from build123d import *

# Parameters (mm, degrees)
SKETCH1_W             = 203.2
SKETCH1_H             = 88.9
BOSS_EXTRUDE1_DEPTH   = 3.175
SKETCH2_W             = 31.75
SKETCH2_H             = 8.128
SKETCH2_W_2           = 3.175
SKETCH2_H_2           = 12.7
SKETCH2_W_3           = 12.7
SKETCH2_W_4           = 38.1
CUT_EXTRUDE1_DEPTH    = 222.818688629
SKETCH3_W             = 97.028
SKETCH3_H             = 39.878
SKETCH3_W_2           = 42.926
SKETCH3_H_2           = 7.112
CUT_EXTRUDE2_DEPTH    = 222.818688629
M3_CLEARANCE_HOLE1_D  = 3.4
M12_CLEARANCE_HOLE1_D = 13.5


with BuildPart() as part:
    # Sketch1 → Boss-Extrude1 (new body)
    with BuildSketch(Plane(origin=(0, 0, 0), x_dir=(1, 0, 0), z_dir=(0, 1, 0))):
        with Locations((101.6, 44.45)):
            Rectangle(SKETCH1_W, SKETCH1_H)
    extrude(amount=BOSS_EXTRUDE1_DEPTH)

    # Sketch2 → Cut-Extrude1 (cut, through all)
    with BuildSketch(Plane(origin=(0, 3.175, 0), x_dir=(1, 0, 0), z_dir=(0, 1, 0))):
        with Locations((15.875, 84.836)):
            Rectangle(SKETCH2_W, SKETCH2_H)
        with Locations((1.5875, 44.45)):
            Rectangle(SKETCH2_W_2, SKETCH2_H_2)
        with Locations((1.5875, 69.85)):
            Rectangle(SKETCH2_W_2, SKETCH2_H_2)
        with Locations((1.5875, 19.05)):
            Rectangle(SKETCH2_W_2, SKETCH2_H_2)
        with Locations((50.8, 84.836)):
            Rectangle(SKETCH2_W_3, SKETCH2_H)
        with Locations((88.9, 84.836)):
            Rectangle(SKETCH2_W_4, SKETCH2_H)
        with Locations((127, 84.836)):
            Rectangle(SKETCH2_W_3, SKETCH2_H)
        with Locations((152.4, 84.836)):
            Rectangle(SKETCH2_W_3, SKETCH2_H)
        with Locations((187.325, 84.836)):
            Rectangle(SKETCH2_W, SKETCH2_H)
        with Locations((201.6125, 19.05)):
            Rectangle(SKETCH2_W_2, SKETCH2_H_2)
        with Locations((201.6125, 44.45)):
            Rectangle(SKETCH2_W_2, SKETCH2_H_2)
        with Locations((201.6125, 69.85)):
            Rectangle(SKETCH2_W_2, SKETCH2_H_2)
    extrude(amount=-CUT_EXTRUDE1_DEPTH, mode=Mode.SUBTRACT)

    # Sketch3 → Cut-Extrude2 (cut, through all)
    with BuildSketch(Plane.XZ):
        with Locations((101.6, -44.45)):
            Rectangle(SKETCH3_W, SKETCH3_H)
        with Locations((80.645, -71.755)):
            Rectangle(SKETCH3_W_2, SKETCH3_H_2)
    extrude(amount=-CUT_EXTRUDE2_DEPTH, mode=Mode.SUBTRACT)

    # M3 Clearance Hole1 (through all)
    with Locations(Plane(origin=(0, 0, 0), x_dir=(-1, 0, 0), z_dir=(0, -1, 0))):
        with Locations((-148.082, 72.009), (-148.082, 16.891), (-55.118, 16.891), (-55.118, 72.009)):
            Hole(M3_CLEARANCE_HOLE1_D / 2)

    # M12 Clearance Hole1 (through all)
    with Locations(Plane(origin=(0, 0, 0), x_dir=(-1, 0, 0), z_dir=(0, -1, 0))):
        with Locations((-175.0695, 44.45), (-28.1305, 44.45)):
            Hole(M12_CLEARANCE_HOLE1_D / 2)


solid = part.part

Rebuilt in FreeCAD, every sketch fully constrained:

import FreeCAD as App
import Part
import Sketcher

V = App.Vector
Q = App.Units.Quantity

doc = App.newDocument("Part")
params = doc.addObject("Spreadsheet::Sheet", "Params")
for row, (alias, value) in enumerate([
    ("sketch1_width", "8 in"),
    ("sketch1_height", "3.5 in"),
    ("pad1_length", "0.125 in"),
    ("sketch2_width", "0.5 in"),
    ("sketch2_width2", "1.5 in"),
    ("sketch2_height", "0.32 in"),
    ("sketch2_width3", "0.125 in"),
    ("sketch3_width", "3.82 in"),
    ("sketch3_width2", "1.69 in"),
    ("sketch3_height", "1.57 in"),
    ("sketch3_height2", "0.28 in"),
    ("hole_diameter", "3.4 mm"),
    ("hole2_diameter", "13.5 mm"),
], start=1):
    params.set(f"A{row}", alias)
    params.set(f"B{row}", "=" + value)
    params.setAlias(f"B{row}", alias)

body = doc.addObject("PartDesign::Body", "Body")

# Sketch on XZ plane
sketch1 = body.newObject("Sketcher::SketchObject", "Sketch")
sketch1.AttachmentSupport = (doc.getObject("XZ_Plane"), [""])
sketch1.MapMode = "FlatFace"
sketch1.addGeometry([
    Part.LineSegment(V(0, -89, 0), V(0, 0, 0)),
    Part.LineSegment(V(0, 0, 0), V(203, 0, 0)),
    Part.LineSegment(V(203, 0, 0), V(203, -89, 0)),
    Part.LineSegment(V(203, -89, 0), V(0, -89, 0)),
], False)
sketch1.addConstraint([
    Sketcher.Constraint("Coincident", 0, 2, 1, 1),
    Sketcher.Constraint("Coincident", 1, 2, 2, 1),
    Sketcher.Constraint("Coincident", 2, 2, 3, 1),
    Sketcher.Constraint("Coincident", 3, 2, 0, 1),
    Sketcher.Constraint("Vertical", 0),
    Sketcher.Constraint("Horizontal", 1),
    Sketcher.Constraint("Vertical", 2),
    Sketcher.Constraint("Horizontal", 3),
    Sketcher.Constraint("Coincident", 0, 2, -1, 1),
    Sketcher.Constraint("DistanceX", 1, 1, 1, 2, Q("8 in")),
    Sketcher.Constraint("DistanceY", 0, 1, 0, 2, Q("3.5 in")),
])
sketch1.setExpression("Constraints[9]", "Params.sketch1_width")
sketch1.setExpression("Constraints[10]", "Params.sketch1_height")
pad1 = body.newObject("PartDesign::Pad", "Pad")
pad1.Profile = sketch1
pad1.setExpression("Length", "Params.pad1_length")
pad1.Reversed = True

# Sketch on XZ plane
sketch2 = body.newObject("Sketcher::SketchObject", "Sketch001")
sketch2.AttachmentSupport = (doc.getObject("XZ_Plane"), [""])
sketch2.MapMode = "FlatFace"
sketch2.AttachmentOffset = App.Placement(V(0, 0, -0.125 * 25.4), App.Rotation())
sketch2.addGeometry([
    Part.LineSegment(V(0, -88.9, 0), V(0, -80.8, 0)),  # 0
    Part.LineSegment(V(0, -80.8, 0), V(31.8, -80.8, 0)),  # 1
    Part.LineSegment(V(31.8, -80.8, 0), V(31.8, -88.9, 0)),  # 2
    Part.LineSegment(V(31.8, -88.9, 0), V(0, -88.9, 0)),  # 3
    Part.LineSegment(V(0, -50.8, 0), V(0, -38.1, 0)),  # 4
    Part.LineSegment(V(0, -38.1, 0), V(3.2, -38.1, 0)),  # 5
    Part.LineSegment(V(3.2, -38.1, 0), V(3.2, -50.8, 0)),  # 6
    Part.LineSegment(V(3.2, -50.8, 0), V(0, -50.8, 0)),  # 7
    Part.LineSegment(V(0, -76.2, 0), V(0, -63.5, 0)),  # 8
    Part.LineSegment(V(0, -63.5, 0), V(3.2, -63.5, 0)),  # 9
    Part.LineSegment(V(3.2, -63.5, 0), V(3.2, -76.2, 0)),  # 10
    Part.LineSegment(V(3.2, -76.2, 0), V(0, -76.2, 0)),  # 11
    Part.LineSegment(V(0, -25.4, 0), V(0, -12.7, 0)),  # 12
    Part.LineSegment(V(0, -12.7, 0), V(3.2, -12.7, 0)),  # 13
    Part.LineSegment(V(3.2, -12.7, 0), V(3.2, -25.4, 0)),  # 14
    Part.LineSegment(V(3.2, -25.4, 0), V(0, -25.4, 0)),  # 15
    Part.LineSegment(V(44.5, -88.9, 0), V(44.5, -80.8, 0)),  # 16
    Part.LineSegment(V(44.5, -80.8, 0), V(57.1, -80.8, 0)),  # 17
    Part.LineSegment(V(57.1, -80.8, 0), V(57.1, -88.9, 0)),  # 18
    Part.LineSegment(V(57.1, -88.9, 0), V(44.5, -88.9, 0)),  # 19
    Part.LineSegment(V(69.8, -88.9, 0), V(69.8, -80.8, 0)),  # 20
    Part.LineSegment(V(69.8, -80.8, 0), V(108, -80.8, 0)),  # 21
    Part.LineSegment(V(108, -80.8, 0), V(108, -88.9, 0)),  # 22
    Part.LineSegment(V(108, -88.9, 0), V(69.8, -88.9, 0)),  # 23
    Part.LineSegment(V(120.7, -88.9, 0), V(120.7, -80.8, 0)),  # 24
    Part.LineSegment(V(120.7, -80.8, 0), V(133.3, -80.8, 0)),  # 25
    Part.LineSegment(V(133.3, -80.8, 0), V(133.3, -88.9, 0)),  # 26
    Part.LineSegment(V(133.3, -88.9, 0), V(120.7, -88.9, 0)),  # 27
    Part.LineSegment(V(146.1, -88.9, 0), V(146.1, -80.8, 0)),  # 28
    Part.LineSegment(V(146.1, -80.8, 0), V(158.8, -80.8, 0)),  # 29
    Part.LineSegment(V(158.8, -80.8, 0), V(158.8, -88.9, 0)),  # 30
    Part.LineSegment(V(158.8, -88.9, 0), V(146.1, -88.9, 0)),  # 31
    Part.LineSegment(V(171.4, -88.9, 0), V(171.4, -80.8, 0)),  # 32
    Part.LineSegment(V(171.4, -80.8, 0), V(203.2, -80.8, 0)),  # 33
    Part.LineSegment(V(203.2, -80.8, 0), V(203.2, -88.9, 0)),  # 34
    Part.LineSegment(V(203.2, -88.9, 0), V(171.4, -88.9, 0)),  # 35
    Part.LineSegment(V(200, -25.4, 0), V(200, -12.7, 0)),  # 36
    Part.LineSegment(V(200, -12.7, 0), V(203.2, -12.7, 0)),  # 37
    Part.LineSegment(V(203.2, -12.7, 0), V(203.2, -25.4, 0)),  # 38
    Part.LineSegment(V(203.2, -25.4, 0), V(200, -25.4, 0)),  # 39
    Part.LineSegment(V(200, -50.8, 0), V(200, -38.1, 0)),  # 40
    Part.LineSegment(V(200, -38.1, 0), V(203.2, -38.1, 0)),  # 41
    Part.LineSegment(V(203.2, -38.1, 0), V(203.2, -50.8, 0)),  # 42
    Part.LineSegment(V(203.2, -50.8, 0), V(200, -50.8, 0)),  # 43
    Part.LineSegment(V(200, -76.2, 0), V(200, -63.5, 0)),  # 44
    Part.LineSegment(V(200, -63.5, 0), V(203.2, -63.5, 0)),  # 45
    Part.LineSegment(V(203.2, -63.5, 0), V(203.2, -76.2, 0)),  # 46
    Part.LineSegment(V(203.2, -76.2, 0), V(200, -76.2, 0)),  # 47
], False)
sketch2.addConstraint([
    Sketcher.Constraint("Coincident", 0, 2, 1, 1),
    Sketcher.Constraint("Coincident", 1, 2, 2, 1),
    Sketcher.Constraint("Coincident", 2, 2, 3, 1),
    Sketcher.Constraint("Coincident", 3, 2, 0, 1),
    Sketcher.Constraint("Coincident", 4, 2, 5, 1),
    Sketcher.Constraint("Coincident", 5, 2, 6, 1),
    Sketcher.Constraint("Coincident", 6, 2, 7, 1),
    Sketcher.Constraint("Coincident", 7, 2, 4, 1),
    Sketcher.Constraint("Coincident", 8, 2, 9, 1),
    Sketcher.Constraint("Coincident", 9, 2, 10, 1),
    Sketcher.Constraint("Coincident", 10, 2, 11, 1),
    Sketcher.Constraint("Coincident", 11, 2, 8, 1),
    Sketcher.Constraint("Coincident", 12, 2, 13, 1),
    Sketcher.Constraint("Coincident", 13, 2, 14, 1),
    Sketcher.Constraint("Coincident", 14, 2, 15, 1),
    Sketcher.Constraint("Coincident", 15, 2, 12, 1),
    Sketcher.Constraint("Coincident", 16, 2, 17, 1),
    Sketcher.Constraint("Coincident", 17, 2, 18, 1),
    Sketcher.Constraint("Coincident", 18, 2, 19, 1),
    Sketcher.Constraint("Coincident", 19, 2, 16, 1),
    Sketcher.Constraint("Coincident", 20, 2, 21, 1),
    Sketcher.Constraint("Coincident", 21, 2, 22, 1),
    Sketcher.Constraint("Coincident", 22, 2, 23, 1),
    Sketcher.Constraint("Coincident", 23, 2, 20, 1),
    Sketcher.Constraint("Coincident", 24, 2, 25, 1),
    Sketcher.Constraint("Coincident", 25, 2, 26, 1),
    Sketcher.Constraint("Coincident", 26, 2, 27, 1),
    Sketcher.Constraint("Coincident", 27, 2, 24, 1),
    Sketcher.Constraint("Coincident", 28, 2, 29, 1),
    Sketcher.Constraint("Coincident", 29, 2, 30, 1),
    Sketcher.Constraint("Coincident", 30, 2, 31, 1),
    Sketcher.Constraint("Coincident", 31, 2, 28, 1),
    Sketcher.Constraint("Coincident", 32, 2, 33, 1),
    Sketcher.Constraint("Coincident", 33, 2, 34, 1),
    Sketcher.Constraint("Coincident", 34, 2, 35, 1),
    Sketcher.Constraint("Coincident", 35, 2, 32, 1),
    Sketcher.Constraint("Coincident", 36, 2, 37, 1),
    Sketcher.Constraint("Coincident", 37, 2, 38, 1),
    Sketcher.Constraint("Coincident", 38, 2, 39, 1),
    Sketcher.Constraint("Coincident", 39, 2, 36, 1),
    Sketcher.Constraint("Coincident", 40, 2, 41, 1),
    Sketcher.Constraint("Coincident", 41, 2, 42, 1),
    Sketcher.Constraint("Coincident", 42, 2, 43, 1),
    Sketcher.Constraint("Coincident", 43, 2, 40, 1),
    Sketcher.Constraint("Coincident", 44, 2, 45, 1),
    Sketcher.Constraint("Coincident", 45, 2, 46, 1),
    Sketcher.Constraint("Coincident", 46, 2, 47, 1),
    Sketcher.Constraint("Coincident", 47, 2, 44, 1),
    Sketcher.Constraint("Vertical", 0),
    Sketcher.Constraint("Horizontal", 1),
    Sketcher.Constraint("Vertical", 2),
    Sketcher.Constraint("Horizontal", 3),
    Sketcher.Constraint("Vertical", 4),
    Sketcher.Constraint("Horizontal", 5),
    Sketcher.Constraint("Vertical", 6),
    Sketcher.Constraint("Horizontal", 7),
    Sketcher.Constraint("Vertical", 8),
    Sketcher.Constraint("Horizontal", 9),
    Sketcher.Constraint("Vertical", 10),
    Sketcher.Constraint("Horizontal", 11),
    Sketcher.Constraint("Vertical", 12),
    Sketcher.Constraint("Horizontal", 13),
    Sketcher.Constraint("Vertical", 14),
    Sketcher.Constraint("Horizontal", 15),
    Sketcher.Constraint("Vertical", 16),
    Sketcher.Constraint("Horizontal", 17),
    Sketcher.Constraint("Vertical", 18),
    Sketcher.Constraint("Horizontal", 19),
    Sketcher.Constraint("Vertical", 20),
    Sketcher.Constraint("Horizontal", 21),
    Sketcher.Constraint("Vertical", 22),
    Sketcher.Constraint("Horizontal", 23),
    Sketcher.Constraint("Vertical", 24),
    Sketcher.Constraint("Horizontal", 25),
    Sketcher.Constraint("Vertical", 26),
    Sketcher.Constraint("Horizontal", 27),
    Sketcher.Constraint("Vertical", 28),
    Sketcher.Constraint("Horizontal", 29),
    Sketcher.Constraint("Vertical", 30),
    Sketcher.Constraint("Horizontal", 31),
    Sketcher.Constraint("Vertical", 32),
    Sketcher.Constraint("Horizontal", 33),
    Sketcher.Constraint("Vertical", 34),
    Sketcher.Constraint("Horizontal", 35),
    Sketcher.Constraint("Vertical", 36),
    Sketcher.Constraint("Horizontal", 37),
    Sketcher.Constraint("Vertical", 38),
    Sketcher.Constraint("Horizontal", 39),
    Sketcher.Constraint("Vertical", 40),
    Sketcher.Constraint("Horizontal", 41),
    Sketcher.Constraint("Vertical", 42),
    Sketcher.Constraint("Horizontal", 43),
    Sketcher.Constraint("Vertical", 44),
    Sketcher.Constraint("Horizontal", 45),
    Sketcher.Constraint("Vertical", 46),
    Sketcher.Constraint("Horizontal", 47),
    Sketcher.Constraint("PointOnObject", 0, 2, -2),
    Sketcher.Constraint("PointOnObject", 4, 2, -2),
    Sketcher.Constraint("PointOnObject", 8, 2, -2),
    Sketcher.Constraint("PointOnObject", 12, 2, -2),
    Sketcher.Constraint("Horizontal", 1, 2, 16, 2),
    Sketcher.Constraint("Horizontal", 3, 2, 18, 2),
    Sketcher.Constraint("Horizontal", 17, 2, 20, 2),
    Sketcher.Constraint("Horizontal", 19, 2, 22, 2),
    Sketcher.Constraint("Horizontal", 21, 2, 24, 2),
    Sketcher.Constraint("Horizontal", 23, 2, 26, 2),
    Sketcher.Constraint("Horizontal", 25, 2, 28, 2),
    Sketcher.Constraint("Horizontal", 27, 2, 30, 2),
    Sketcher.Constraint("Horizontal", 29, 2, 32, 2),
    Sketcher.Constraint("Horizontal", 31, 2, 34, 2),
    Sketcher.Constraint("Horizontal", 13, 2, 36, 2),
    Sketcher.Constraint("Horizontal", 15, 2, 38, 2),
    Sketcher.Constraint("Horizontal", 5, 2, 40, 2),
    Sketcher.Constraint("Horizontal", 7, 2, 42, 2),
    Sketcher.Constraint("Horizontal", 9, 2, 44, 2),
    Sketcher.Constraint("Horizontal", 11, 2, 46, 2),
    Sketcher.Constraint("Vertical", 6, 2, 9, 2),
    Sketcher.Constraint("Vertical", 10, 2, 13, 2),
    Sketcher.Constraint("Vertical", 34, 2, 37, 2),
    Sketcher.Constraint("Vertical", 39, 2, 40, 2),
    Sketcher.Constraint("Vertical", 38, 2, 41, 2),
    Sketcher.Constraint("Vertical", 43, 2, 44, 2),
    Sketcher.Constraint("Vertical", 42, 2, 45, 2),
    Sketcher.Constraint("Equal", 19, 25),
    Sketcher.Constraint("Equal", 27, 29),
    Sketcher.Constraint("Equal", 3, 33),
    Sketcher.Constraint("Equal", 15, 37),
    Sketcher.Constraint("Equal", 31, 4),
    Sketcher.Constraint("Equal", 6, 8),
    Sketcher.Constraint("Equal", 10, 12),
    Sketcher.Constraint("DistanceX", 17, 1, 17, 2, Q("0.5 in")),
    Sketcher.Constraint("DistanceX", 21, 1, 21, 2, Q("1.5 in")),
    Sketcher.Constraint("DistanceY", 6, 2, -1, 1, Q("2 in")),
    Sketcher.Constraint("DistanceY", 10, 2, -1, 1, Q("3 in")),
    Sketcher.Constraint("DistanceY", 14, 2, -1, 1, Q("1 in")),
    Sketcher.Constraint("DistanceX", -1, 1, 33, 2, Q("8 in")),
    Sketcher.Constraint("DistanceY", 3, 2, 4, 2, Q("2 in")),
    Sketcher.Constraint("DistanceX", 1, 2, 17, 2, Q("1 in")),
    Sketcher.Constraint("DistanceX", 16, 2, 20, 2, Q("1 in")),
    Sketcher.Constraint("DistanceX", 20, 2, 24, 2, Q("2 in")),
    Sketcher.Constraint("DistanceX", 24, 2, 28, 2, Q("1 in")),
    Sketcher.Constraint("DistanceX", 28, 2, 32, 2, Q("1 in")),
    Sketcher.Constraint("DistanceY", 0, 1, 0, 2, Q("0.32 in")),
    Sketcher.Constraint("DistanceX", 5, 1, 5, 2, Q("0.125 in")),
])
sketch2.setExpression("Constraints[130]", "Params.sketch2_width")
sketch2.setExpression("Constraints[131]", "Params.sketch2_width2")
sketch2.setExpression("Constraints[142]", "Params.sketch2_height")
sketch2.setExpression("Constraints[143]", "Params.sketch2_width3")
pocket1 = body.newObject("PartDesign::Pocket", "Pocket")
pocket1.Profile = sketch2
pocket1.Type = "ThroughAll"
pocket1.Reversed = True

# Sketch on XZ plane
sketch3 = body.newObject("Sketcher::SketchObject", "Sketch002")
sketch3.AttachmentSupport = (doc.getObject("XZ_Plane"), [""])
sketch3.MapMode = "FlatFace"
sketch3.addGeometry([
    Part.LineSegment(V(53, -25, 0), V(53, -64, 0)),  # 0
    Part.LineSegment(V(53, -64, 0), V(150, -64, 0)),  # 1
    Part.LineSegment(V(150, -64, 0), V(150, -25, 0)),  # 2
    Part.LineSegment(V(150, -25, 0), V(53, -25, 0)),  # 3
    Part.LineSegment(V(59, -68, 0), V(59, -75, 0)),  # 4
    Part.LineSegment(V(59, -75, 0), V(102, -75, 0)),  # 5
    Part.LineSegment(V(102, -75, 0), V(102, -68, 0)),  # 6
    Part.LineSegment(V(102, -68, 0), V(59, -68, 0)),  # 7
], False)
sketch3.addConstraint([
    Sketcher.Constraint("Coincident", 0, 2, 1, 1),
    Sketcher.Constraint("Coincident", 1, 2, 2, 1),
    Sketcher.Constraint("Coincident", 2, 2, 3, 1),
    Sketcher.Constraint("Coincident", 3, 2, 0, 1),
    Sketcher.Constraint("Coincident", 4, 2, 5, 1),
    Sketcher.Constraint("Coincident", 5, 2, 6, 1),
    Sketcher.Constraint("Coincident", 6, 2, 7, 1),
    Sketcher.Constraint("Coincident", 7, 2, 4, 1),
    Sketcher.Constraint("Vertical", 0),
    Sketcher.Constraint("Horizontal", 1),
    Sketcher.Constraint("Vertical", 2),
    Sketcher.Constraint("Horizontal", 3),
    Sketcher.Constraint("Vertical", 4),
    Sketcher.Constraint("Horizontal", 5),
    Sketcher.Constraint("Vertical", 6),
    Sketcher.Constraint("Horizontal", 7),
    Sketcher.Constraint("DistanceY", 4, 2, 3, 2, Q("2 in")),
    Sketcher.Constraint("DistanceX", 1, 1, 1, 2, Q("3.82 in")),
    Sketcher.Constraint("DistanceX", 5, 1, 5, 2, Q("1.69 in")),
    Sketcher.Constraint("DistanceY", 0, 2, 0, 1, Q("1.57 in")),
    Sketcher.Constraint("DistanceY", 4, 2, 4, 1, Q("0.28 in")),
    Sketcher.Constraint("DistanceX", -1, 1, 0, 2, Q("2.09 in")),
    Sketcher.Constraint("DistanceX", -1, 1, 4, 2, Q("2.33 in")),
    Sketcher.Constraint("DistanceY", 0, 2, -1, 1, Q("2.535 in")),
])
sketch3.setExpression("Constraints[17]", "Params.sketch3_width")
sketch3.setExpression("Constraints[18]", "Params.sketch3_width2")
sketch3.setExpression("Constraints[19]", "Params.sketch3_height")
sketch3.setExpression("Constraints[20]", "Params.sketch3_height2")
pocket2 = body.newObject("PartDesign::Pocket", "Pocket001")
pocket2.Profile = sketch3
pocket2.Type = "ThroughAll"

# Sketch on XZ plane
sketch4 = body.newObject("Sketcher::SketchObject", "Sketch003")
sketch4.AttachmentSupport = (doc.getObject("XZ_Plane"), [""])
sketch4.MapMode = "FlatFace"
sketch4.addGeometry([
    Part.Circle(V(148.1, -72, 0), V(0, 0, 1), 1.7),
    Part.Circle(V(148.1, -16.9, 0), V(0, 0, 1), 1.7),
    Part.Circle(V(55.1, -16.9, 0), V(0, 0, 1), 1.7),
    Part.Circle(V(55.1, -72, 0), V(0, 0, 1), 1.7),
], False)
sketch4.addConstraint([
    Sketcher.Constraint("Equal", 0, 1),
    Sketcher.Constraint("Equal", 1, 2),
    Sketcher.Constraint("Equal", 2, 3),
    Sketcher.Constraint("Horizontal", 1, 3, 2, 3),
    Sketcher.Constraint("Horizontal", 0, 3, 3, 3),
    Sketcher.Constraint("Vertical", 0, 3, 1, 3),
    Sketcher.Constraint("Vertical", 2, 3, 3, 3),
    Sketcher.Constraint("Diameter", 0, Q("3.4 mm")),
    Sketcher.Constraint("DistanceX", -1, 1, 0, 3, Q("5.83 in")),
    Sketcher.Constraint("DistanceX", -1, 1, 2, 3, Q("2.17 in")),
    Sketcher.Constraint("DistanceY", 0, 3, 1, 3, Q("2.17 in")),
    Sketcher.Constraint("DistanceY", 0, 3, -1, 1, Q("2.835 in")),
])
doc.recompute()
hole = body.newObject("PartDesign::Hole", "Hole")
hole.Profile = sketch4
hole.ThreadType = "None"
hole.setExpression("Diameter", "Params.hole_diameter")
hole.DepthType = "ThroughAll"

# Sketch on XZ plane
sketch5 = body.newObject("Sketcher::SketchObject", "Sketch004")
sketch5.AttachmentSupport = (doc.getObject("XZ_Plane"), [""])
sketch5.MapMode = "FlatFace"
sketch5.addGeometry([
    Part.Circle(V(175, -44, 0), V(0, 0, 1), 7),
    Part.Circle(V(28, -44, 0), V(0, 0, 1), 7),
], False)
sketch5.addConstraint([
    Sketcher.Constraint("Equal", 0, 1),
    Sketcher.Constraint("Horizontal", 0, 3, 1, 3),
    Sketcher.Constraint("Diameter", 0, Q("13.5 mm")),
    Sketcher.Constraint("DistanceY", 0, 3, -1, 1, Q("1.75 in")),
    Sketcher.Constraint("DistanceX", 1, 3, 0, 3, Q("5.785 in")),
    Sketcher.Constraint("DistanceX", -1, 1, 0, 3, Q("6.8925 in")),
])
doc.recompute()
hole2 = body.newObject("PartDesign::Hole", "Hole001")
hole2.Profile = sketch5
hole2.ThreadType = "None"
hole2.setExpression("Diameter", "Params.hole2_diameter")
hole2.DepthType = "ThroughAll"

doc.recompute()
